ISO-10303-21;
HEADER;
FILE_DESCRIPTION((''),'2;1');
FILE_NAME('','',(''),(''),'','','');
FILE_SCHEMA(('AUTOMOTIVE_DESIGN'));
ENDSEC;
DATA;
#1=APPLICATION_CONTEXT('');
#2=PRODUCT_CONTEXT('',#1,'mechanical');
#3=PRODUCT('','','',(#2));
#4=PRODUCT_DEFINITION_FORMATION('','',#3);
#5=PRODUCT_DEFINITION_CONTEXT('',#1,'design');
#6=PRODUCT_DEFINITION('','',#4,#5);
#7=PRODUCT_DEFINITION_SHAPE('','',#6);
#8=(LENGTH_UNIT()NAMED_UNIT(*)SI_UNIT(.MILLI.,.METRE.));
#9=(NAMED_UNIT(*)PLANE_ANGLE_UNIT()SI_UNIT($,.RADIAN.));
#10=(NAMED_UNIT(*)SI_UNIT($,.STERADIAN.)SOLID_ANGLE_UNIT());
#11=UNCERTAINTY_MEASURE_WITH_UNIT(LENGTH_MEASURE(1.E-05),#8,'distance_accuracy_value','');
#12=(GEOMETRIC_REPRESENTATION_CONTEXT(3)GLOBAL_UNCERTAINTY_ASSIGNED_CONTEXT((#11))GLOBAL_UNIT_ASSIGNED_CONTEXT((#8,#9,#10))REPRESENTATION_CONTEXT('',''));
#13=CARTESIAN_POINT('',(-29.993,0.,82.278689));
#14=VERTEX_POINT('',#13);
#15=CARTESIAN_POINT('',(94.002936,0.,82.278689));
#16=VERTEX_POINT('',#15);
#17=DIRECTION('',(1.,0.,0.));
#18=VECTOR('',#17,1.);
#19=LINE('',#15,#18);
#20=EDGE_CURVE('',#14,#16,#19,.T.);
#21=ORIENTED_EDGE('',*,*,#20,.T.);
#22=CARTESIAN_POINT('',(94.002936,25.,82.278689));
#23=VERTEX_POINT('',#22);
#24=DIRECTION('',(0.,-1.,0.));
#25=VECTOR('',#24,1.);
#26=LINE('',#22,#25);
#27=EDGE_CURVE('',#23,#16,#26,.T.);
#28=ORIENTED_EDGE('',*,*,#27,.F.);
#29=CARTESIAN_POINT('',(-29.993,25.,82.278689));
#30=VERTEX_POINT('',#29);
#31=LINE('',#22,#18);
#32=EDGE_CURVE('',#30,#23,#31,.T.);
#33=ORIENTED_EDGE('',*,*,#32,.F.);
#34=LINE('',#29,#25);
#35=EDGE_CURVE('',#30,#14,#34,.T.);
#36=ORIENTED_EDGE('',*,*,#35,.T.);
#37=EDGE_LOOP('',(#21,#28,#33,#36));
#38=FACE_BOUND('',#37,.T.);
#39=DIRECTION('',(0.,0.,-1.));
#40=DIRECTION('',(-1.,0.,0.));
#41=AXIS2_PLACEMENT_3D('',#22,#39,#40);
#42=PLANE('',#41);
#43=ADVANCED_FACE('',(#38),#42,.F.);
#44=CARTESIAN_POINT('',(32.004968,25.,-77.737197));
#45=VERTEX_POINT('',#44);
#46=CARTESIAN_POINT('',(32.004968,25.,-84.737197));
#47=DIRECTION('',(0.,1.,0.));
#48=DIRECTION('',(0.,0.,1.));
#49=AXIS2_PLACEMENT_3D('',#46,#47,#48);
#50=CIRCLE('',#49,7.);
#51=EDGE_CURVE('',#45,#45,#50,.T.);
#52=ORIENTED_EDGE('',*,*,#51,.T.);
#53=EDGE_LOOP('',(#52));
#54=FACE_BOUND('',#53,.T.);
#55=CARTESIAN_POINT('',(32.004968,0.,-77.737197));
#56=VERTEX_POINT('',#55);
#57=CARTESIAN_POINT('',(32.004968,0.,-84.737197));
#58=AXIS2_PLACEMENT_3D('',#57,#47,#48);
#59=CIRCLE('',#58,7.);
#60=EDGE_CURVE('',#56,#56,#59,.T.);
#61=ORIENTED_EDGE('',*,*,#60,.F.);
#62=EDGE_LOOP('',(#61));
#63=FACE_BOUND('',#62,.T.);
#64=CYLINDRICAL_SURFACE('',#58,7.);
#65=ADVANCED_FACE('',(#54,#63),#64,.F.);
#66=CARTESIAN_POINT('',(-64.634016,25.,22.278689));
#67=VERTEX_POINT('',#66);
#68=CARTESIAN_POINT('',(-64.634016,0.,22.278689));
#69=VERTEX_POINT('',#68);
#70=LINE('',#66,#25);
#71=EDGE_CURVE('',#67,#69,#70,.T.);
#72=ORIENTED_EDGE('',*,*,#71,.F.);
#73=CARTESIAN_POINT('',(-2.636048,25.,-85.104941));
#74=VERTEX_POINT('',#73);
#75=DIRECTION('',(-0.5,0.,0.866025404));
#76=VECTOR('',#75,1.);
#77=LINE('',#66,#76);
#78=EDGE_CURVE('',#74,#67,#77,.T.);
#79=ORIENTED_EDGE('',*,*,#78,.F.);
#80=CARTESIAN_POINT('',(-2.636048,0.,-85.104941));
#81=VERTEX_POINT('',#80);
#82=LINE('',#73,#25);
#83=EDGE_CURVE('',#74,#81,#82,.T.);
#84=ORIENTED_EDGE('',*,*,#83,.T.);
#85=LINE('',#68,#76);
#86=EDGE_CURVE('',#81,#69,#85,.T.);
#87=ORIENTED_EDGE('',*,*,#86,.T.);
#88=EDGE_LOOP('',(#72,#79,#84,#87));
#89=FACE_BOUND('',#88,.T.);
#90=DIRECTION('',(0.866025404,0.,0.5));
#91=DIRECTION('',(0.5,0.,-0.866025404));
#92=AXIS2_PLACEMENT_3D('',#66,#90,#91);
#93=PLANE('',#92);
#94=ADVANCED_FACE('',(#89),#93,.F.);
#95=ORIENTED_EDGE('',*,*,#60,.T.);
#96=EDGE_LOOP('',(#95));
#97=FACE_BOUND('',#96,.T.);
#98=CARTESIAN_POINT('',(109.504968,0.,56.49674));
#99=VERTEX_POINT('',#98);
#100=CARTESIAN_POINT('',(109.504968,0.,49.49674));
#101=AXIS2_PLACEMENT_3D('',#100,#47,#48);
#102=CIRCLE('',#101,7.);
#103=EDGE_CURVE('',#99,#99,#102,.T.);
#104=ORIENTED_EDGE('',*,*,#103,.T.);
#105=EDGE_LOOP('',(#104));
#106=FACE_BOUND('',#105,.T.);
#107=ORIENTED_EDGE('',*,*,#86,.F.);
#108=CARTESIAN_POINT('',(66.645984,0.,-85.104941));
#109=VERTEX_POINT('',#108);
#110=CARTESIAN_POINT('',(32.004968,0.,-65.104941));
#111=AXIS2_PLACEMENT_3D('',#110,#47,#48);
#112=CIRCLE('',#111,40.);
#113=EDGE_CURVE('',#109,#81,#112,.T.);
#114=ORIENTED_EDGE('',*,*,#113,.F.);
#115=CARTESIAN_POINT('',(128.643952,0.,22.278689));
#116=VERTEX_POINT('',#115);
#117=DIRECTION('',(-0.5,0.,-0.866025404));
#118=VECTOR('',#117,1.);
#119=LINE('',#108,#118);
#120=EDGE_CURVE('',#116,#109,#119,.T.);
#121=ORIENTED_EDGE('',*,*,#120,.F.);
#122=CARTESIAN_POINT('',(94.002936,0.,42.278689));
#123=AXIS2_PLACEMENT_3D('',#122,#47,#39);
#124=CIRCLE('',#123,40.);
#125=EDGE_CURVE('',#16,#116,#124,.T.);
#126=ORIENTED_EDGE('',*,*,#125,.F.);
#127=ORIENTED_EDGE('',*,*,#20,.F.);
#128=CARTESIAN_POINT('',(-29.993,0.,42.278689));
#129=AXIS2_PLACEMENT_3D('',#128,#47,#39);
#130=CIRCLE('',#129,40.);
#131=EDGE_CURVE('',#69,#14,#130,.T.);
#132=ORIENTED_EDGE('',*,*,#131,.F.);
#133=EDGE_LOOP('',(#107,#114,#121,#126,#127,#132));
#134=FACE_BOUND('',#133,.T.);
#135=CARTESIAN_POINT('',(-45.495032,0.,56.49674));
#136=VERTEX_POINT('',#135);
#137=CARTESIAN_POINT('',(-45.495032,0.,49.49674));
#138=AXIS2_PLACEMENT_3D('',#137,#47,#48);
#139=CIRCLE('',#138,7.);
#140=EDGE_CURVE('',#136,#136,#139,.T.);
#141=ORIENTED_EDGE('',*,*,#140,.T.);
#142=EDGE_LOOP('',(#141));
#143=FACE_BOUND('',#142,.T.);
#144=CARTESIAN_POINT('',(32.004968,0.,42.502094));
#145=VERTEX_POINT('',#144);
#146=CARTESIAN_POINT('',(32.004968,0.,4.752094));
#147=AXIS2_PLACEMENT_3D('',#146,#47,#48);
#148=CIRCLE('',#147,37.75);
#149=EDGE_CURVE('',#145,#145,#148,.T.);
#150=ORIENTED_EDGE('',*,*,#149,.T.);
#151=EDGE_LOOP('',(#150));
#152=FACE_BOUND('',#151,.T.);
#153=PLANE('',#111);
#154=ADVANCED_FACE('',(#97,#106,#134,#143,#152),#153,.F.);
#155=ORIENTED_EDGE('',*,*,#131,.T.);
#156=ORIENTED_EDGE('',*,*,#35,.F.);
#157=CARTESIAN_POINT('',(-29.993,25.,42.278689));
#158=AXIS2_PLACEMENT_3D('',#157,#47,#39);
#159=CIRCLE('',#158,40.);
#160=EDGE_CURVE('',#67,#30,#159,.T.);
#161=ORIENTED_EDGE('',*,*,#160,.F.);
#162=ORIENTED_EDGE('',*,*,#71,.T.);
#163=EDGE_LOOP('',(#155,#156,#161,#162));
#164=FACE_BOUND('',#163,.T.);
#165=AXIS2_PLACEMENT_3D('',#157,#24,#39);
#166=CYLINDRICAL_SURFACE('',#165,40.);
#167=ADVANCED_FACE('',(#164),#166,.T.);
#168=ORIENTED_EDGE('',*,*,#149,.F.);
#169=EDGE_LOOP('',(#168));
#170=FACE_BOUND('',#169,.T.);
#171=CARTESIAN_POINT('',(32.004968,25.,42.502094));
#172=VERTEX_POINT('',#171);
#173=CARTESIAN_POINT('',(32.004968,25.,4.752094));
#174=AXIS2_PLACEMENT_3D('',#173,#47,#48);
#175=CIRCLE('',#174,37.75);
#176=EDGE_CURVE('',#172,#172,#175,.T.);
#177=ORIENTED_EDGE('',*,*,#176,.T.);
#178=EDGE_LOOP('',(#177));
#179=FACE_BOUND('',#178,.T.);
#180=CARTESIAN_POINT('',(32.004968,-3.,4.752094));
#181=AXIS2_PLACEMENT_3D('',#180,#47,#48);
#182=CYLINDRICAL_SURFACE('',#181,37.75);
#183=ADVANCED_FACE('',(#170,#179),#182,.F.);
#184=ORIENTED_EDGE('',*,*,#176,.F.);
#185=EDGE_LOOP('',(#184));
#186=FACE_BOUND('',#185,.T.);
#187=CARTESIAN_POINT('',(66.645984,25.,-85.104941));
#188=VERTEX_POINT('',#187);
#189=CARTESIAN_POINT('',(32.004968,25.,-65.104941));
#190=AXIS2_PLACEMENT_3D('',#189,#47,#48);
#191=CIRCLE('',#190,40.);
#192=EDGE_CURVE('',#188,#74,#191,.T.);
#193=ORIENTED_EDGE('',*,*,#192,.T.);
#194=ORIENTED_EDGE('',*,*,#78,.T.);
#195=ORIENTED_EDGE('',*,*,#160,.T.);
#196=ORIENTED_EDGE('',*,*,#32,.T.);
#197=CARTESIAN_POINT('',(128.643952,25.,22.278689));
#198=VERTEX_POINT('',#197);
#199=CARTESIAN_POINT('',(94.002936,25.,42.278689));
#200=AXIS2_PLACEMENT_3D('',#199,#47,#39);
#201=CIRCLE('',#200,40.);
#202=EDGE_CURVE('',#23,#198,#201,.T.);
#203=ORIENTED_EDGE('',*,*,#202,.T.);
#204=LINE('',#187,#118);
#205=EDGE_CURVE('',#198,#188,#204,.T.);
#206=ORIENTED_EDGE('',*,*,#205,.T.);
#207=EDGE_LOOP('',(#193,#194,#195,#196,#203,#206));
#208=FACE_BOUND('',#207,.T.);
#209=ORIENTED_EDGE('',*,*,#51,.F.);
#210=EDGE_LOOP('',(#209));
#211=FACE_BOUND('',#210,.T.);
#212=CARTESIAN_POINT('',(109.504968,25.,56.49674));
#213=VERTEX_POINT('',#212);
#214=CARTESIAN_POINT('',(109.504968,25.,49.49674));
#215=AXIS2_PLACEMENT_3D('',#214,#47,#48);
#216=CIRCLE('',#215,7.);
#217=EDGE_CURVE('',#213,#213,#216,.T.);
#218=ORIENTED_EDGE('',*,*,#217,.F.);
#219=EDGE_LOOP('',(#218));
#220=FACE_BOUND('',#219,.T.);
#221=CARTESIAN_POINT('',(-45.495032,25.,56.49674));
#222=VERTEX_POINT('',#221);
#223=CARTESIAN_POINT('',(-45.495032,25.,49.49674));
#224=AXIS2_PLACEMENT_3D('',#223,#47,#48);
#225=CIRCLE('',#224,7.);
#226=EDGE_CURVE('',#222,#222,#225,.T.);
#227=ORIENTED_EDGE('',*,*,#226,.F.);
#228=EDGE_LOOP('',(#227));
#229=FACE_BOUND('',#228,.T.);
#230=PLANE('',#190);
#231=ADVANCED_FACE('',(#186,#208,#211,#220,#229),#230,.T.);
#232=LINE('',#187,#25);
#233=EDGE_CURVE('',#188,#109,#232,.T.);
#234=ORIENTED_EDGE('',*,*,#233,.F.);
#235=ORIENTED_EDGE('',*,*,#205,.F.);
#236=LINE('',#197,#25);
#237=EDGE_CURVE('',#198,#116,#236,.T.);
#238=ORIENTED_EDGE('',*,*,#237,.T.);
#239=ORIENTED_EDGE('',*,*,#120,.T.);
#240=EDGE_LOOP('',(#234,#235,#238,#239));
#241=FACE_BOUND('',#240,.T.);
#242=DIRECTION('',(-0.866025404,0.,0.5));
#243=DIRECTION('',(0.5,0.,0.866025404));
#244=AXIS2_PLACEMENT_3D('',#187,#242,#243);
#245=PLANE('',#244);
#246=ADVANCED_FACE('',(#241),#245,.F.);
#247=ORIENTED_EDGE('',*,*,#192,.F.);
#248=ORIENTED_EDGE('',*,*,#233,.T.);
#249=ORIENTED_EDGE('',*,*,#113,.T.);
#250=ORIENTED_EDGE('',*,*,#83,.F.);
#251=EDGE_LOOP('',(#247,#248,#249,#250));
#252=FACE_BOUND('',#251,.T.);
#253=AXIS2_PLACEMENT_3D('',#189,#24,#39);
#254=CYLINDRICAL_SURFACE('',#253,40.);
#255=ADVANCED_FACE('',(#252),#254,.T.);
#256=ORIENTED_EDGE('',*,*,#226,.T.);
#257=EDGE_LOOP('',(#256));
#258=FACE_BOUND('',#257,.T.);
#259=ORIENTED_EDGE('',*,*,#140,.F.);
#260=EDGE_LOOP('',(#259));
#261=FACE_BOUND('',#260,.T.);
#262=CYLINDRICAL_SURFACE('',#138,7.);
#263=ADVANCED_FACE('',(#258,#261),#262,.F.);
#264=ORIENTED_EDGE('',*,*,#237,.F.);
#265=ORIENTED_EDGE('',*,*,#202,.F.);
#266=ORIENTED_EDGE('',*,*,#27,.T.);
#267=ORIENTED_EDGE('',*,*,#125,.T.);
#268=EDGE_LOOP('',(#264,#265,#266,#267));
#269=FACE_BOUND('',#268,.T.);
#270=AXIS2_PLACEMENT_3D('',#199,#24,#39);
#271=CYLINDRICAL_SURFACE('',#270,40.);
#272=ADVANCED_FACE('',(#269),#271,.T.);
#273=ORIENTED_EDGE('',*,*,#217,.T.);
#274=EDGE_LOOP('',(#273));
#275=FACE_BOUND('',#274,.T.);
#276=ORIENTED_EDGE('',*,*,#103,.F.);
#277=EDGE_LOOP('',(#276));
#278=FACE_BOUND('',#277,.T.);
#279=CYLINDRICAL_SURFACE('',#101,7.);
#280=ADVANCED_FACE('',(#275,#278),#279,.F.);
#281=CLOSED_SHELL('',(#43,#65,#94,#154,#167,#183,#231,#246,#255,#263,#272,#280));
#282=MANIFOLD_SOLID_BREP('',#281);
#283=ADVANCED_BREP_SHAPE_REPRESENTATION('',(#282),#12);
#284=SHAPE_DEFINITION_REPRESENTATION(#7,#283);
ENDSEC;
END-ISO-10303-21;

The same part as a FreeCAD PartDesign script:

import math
import FreeCAD as App
import Part
import Sketcher

V = App.Vector
Q = App.Units.Quantity

doc = App.newDocument("Part")
body = doc.addObject("PartDesign::Body", "Body")

# Sketch on XZ plane
sketch1 = body.newObject("Sketcher::SketchObject", "Sketch")
sketch1.AttachmentSupport = (doc.getObject("XZ_Plane"), [""])
sketch1.MapMode = "FlatFace"
sketch1.addGeometry([
    Part.LineSegment(V(129, 22, 0), V(67, -85, 0)),  # 0
    Part.ArcOfCircle(Part.Circle(V(32, -65, 0), V(0, 0, 1), 40), math.radians(-150), math.radians(-30)),  # 1
    Part.LineSegment(V(-3, -85, 0), V(-65, 22, 0)),  # 2
    Part.ArcOfCircle(Part.Circle(V(-30, 42, 0), V(0, 0, 1), 40), math.radians(90), math.radians(210)),  # 3
    Part.LineSegment(V(-30, 82, 0), V(94, 82, 0)),  # 4
    Part.ArcOfCircle(Part.Circle(V(94, 42, 0), V(0, 0, 1), 40), math.radians(-30), math.radians(90)),  # 5
], False)
sketch1.addConstraint([
    Sketcher.Constraint("Tangent", 0, 2, 1, 2),
    Sketcher.Constraint("Tangent", 1, 1, 2, 1),
    Sketcher.Constraint("Tangent", 2, 2, 3, 2),
    Sketcher.Constraint("Tangent", 3, 1, 4, 1),
    Sketcher.Constraint("Tangent", 4, 2, 5, 2),
    Sketcher.Constraint("Tangent", 5, 1, 0, 1),
    Sketcher.Constraint("Horizontal", 4),
    Sketcher.Constraint("Equal", 1, 3),
    Sketcher.Constraint("Equal", 3, 5),
    Sketcher.Constraint("Horizontal", 0, 2, 1, 1),
    Sketcher.Constraint("Radius", 1, Q("40 mm")),
    Sketcher.Constraint("Angle", 0, Q("-120 deg")),
    Sketcher.Constraint("DistanceX", 2, 2, 0, 2, Q("131.28 mm")),
    Sketcher.Constraint("DistanceX", 3, 3, -1, 1, Q("29.993 mm")),
    Sketcher.Constraint("DistanceY", 1, 3, -1, 1, Q("65.104941 mm")),
])
pad1 = body.newObject("PartDesign::Pad", "Pad")
pad1.Profile = sketch1
pad1.Length = 25
pad1.Reversed = True

# Sketch on XZ plane
sketch2 = body.newObject("Sketcher::SketchObject", "Sketch001")
sketch2.AttachmentSupport = (doc.getObject("XZ_Plane"), [""])
sketch2.MapMode = "FlatFace"
sketch2.AttachmentOffset = App.Placement(V(0, 0, -25), App.Rotation())
sketch2.addGeometry(Part.Circle(V(32, 5, 0), V(0, 0, 1), 38), False)
sketch2.addConstraint([
    Sketcher.Constraint("Diameter", 0, Q("75.5 mm")),
    Sketcher.Constraint("DistanceX", -1, 1, 0, 3, Q("32.004968 mm")),
    Sketcher.Constraint("DistanceY", -1, 1, 0, 3, Q("4.752094 mm")),
])
pocket1 = body.newObject("PartDesign::Pocket", "Pocket")
pocket1.Profile = sketch2
pocket1.Length = 28
pocket1.Reversed = True

# Sketch on XZ plane
sketch3 = body.newObject("Sketcher::SketchObject", "Sketch002")
sketch3.AttachmentSupport = (doc.getObject("XZ_Plane"), [""])
sketch3.MapMode = "FlatFace"
sketch3.AttachmentOffset = App.Placement(V(0, 0, -25), App.Rotation())
sketch3.addGeometry([
    Part.Circle(V(32, -85, 0), V(0, 0, 1), 7),
    Part.Circle(V(110, 49, 0), V(0, 0, 1), 7),
    Part.Circle(V(-45, 49, 0), V(0, 0, 1), 7),
], False)
sketch3.addConstraint([
    Sketcher.Constraint("Equal", 0, 1),
    Sketcher.Constraint("Equal", 1, 2),
    Sketcher.Constraint("Horizontal", 1, 3, 2, 3),
    Sketcher.Constraint("Diameter", 0, Q("14 mm")),
    Sketcher.Constraint("DistanceX", 2, 3, 1, 3, Q("155 mm")),
    Sketcher.Constraint("DistanceX", 0, 3, 1, 3, Q("77.5 mm")),
    Sketcher.Constraint("DistanceX", -1, 1, 0, 3, Q("32.004968 mm")),
    Sketcher.Constraint("DistanceY", -1, 1, 1, 3, Q("49.49674 mm")),
    Sketcher.Constraint("DistanceY", 0, 3, -1, 1, Q("84.737197 mm")),
])
pocket2 = body.newObject("PartDesign::Pocket", "Pocket001")
pocket2.Profile = sketch3
pocket2.Type = "ThroughAll"
pocket2.Reversed = True

doc.recompute()
